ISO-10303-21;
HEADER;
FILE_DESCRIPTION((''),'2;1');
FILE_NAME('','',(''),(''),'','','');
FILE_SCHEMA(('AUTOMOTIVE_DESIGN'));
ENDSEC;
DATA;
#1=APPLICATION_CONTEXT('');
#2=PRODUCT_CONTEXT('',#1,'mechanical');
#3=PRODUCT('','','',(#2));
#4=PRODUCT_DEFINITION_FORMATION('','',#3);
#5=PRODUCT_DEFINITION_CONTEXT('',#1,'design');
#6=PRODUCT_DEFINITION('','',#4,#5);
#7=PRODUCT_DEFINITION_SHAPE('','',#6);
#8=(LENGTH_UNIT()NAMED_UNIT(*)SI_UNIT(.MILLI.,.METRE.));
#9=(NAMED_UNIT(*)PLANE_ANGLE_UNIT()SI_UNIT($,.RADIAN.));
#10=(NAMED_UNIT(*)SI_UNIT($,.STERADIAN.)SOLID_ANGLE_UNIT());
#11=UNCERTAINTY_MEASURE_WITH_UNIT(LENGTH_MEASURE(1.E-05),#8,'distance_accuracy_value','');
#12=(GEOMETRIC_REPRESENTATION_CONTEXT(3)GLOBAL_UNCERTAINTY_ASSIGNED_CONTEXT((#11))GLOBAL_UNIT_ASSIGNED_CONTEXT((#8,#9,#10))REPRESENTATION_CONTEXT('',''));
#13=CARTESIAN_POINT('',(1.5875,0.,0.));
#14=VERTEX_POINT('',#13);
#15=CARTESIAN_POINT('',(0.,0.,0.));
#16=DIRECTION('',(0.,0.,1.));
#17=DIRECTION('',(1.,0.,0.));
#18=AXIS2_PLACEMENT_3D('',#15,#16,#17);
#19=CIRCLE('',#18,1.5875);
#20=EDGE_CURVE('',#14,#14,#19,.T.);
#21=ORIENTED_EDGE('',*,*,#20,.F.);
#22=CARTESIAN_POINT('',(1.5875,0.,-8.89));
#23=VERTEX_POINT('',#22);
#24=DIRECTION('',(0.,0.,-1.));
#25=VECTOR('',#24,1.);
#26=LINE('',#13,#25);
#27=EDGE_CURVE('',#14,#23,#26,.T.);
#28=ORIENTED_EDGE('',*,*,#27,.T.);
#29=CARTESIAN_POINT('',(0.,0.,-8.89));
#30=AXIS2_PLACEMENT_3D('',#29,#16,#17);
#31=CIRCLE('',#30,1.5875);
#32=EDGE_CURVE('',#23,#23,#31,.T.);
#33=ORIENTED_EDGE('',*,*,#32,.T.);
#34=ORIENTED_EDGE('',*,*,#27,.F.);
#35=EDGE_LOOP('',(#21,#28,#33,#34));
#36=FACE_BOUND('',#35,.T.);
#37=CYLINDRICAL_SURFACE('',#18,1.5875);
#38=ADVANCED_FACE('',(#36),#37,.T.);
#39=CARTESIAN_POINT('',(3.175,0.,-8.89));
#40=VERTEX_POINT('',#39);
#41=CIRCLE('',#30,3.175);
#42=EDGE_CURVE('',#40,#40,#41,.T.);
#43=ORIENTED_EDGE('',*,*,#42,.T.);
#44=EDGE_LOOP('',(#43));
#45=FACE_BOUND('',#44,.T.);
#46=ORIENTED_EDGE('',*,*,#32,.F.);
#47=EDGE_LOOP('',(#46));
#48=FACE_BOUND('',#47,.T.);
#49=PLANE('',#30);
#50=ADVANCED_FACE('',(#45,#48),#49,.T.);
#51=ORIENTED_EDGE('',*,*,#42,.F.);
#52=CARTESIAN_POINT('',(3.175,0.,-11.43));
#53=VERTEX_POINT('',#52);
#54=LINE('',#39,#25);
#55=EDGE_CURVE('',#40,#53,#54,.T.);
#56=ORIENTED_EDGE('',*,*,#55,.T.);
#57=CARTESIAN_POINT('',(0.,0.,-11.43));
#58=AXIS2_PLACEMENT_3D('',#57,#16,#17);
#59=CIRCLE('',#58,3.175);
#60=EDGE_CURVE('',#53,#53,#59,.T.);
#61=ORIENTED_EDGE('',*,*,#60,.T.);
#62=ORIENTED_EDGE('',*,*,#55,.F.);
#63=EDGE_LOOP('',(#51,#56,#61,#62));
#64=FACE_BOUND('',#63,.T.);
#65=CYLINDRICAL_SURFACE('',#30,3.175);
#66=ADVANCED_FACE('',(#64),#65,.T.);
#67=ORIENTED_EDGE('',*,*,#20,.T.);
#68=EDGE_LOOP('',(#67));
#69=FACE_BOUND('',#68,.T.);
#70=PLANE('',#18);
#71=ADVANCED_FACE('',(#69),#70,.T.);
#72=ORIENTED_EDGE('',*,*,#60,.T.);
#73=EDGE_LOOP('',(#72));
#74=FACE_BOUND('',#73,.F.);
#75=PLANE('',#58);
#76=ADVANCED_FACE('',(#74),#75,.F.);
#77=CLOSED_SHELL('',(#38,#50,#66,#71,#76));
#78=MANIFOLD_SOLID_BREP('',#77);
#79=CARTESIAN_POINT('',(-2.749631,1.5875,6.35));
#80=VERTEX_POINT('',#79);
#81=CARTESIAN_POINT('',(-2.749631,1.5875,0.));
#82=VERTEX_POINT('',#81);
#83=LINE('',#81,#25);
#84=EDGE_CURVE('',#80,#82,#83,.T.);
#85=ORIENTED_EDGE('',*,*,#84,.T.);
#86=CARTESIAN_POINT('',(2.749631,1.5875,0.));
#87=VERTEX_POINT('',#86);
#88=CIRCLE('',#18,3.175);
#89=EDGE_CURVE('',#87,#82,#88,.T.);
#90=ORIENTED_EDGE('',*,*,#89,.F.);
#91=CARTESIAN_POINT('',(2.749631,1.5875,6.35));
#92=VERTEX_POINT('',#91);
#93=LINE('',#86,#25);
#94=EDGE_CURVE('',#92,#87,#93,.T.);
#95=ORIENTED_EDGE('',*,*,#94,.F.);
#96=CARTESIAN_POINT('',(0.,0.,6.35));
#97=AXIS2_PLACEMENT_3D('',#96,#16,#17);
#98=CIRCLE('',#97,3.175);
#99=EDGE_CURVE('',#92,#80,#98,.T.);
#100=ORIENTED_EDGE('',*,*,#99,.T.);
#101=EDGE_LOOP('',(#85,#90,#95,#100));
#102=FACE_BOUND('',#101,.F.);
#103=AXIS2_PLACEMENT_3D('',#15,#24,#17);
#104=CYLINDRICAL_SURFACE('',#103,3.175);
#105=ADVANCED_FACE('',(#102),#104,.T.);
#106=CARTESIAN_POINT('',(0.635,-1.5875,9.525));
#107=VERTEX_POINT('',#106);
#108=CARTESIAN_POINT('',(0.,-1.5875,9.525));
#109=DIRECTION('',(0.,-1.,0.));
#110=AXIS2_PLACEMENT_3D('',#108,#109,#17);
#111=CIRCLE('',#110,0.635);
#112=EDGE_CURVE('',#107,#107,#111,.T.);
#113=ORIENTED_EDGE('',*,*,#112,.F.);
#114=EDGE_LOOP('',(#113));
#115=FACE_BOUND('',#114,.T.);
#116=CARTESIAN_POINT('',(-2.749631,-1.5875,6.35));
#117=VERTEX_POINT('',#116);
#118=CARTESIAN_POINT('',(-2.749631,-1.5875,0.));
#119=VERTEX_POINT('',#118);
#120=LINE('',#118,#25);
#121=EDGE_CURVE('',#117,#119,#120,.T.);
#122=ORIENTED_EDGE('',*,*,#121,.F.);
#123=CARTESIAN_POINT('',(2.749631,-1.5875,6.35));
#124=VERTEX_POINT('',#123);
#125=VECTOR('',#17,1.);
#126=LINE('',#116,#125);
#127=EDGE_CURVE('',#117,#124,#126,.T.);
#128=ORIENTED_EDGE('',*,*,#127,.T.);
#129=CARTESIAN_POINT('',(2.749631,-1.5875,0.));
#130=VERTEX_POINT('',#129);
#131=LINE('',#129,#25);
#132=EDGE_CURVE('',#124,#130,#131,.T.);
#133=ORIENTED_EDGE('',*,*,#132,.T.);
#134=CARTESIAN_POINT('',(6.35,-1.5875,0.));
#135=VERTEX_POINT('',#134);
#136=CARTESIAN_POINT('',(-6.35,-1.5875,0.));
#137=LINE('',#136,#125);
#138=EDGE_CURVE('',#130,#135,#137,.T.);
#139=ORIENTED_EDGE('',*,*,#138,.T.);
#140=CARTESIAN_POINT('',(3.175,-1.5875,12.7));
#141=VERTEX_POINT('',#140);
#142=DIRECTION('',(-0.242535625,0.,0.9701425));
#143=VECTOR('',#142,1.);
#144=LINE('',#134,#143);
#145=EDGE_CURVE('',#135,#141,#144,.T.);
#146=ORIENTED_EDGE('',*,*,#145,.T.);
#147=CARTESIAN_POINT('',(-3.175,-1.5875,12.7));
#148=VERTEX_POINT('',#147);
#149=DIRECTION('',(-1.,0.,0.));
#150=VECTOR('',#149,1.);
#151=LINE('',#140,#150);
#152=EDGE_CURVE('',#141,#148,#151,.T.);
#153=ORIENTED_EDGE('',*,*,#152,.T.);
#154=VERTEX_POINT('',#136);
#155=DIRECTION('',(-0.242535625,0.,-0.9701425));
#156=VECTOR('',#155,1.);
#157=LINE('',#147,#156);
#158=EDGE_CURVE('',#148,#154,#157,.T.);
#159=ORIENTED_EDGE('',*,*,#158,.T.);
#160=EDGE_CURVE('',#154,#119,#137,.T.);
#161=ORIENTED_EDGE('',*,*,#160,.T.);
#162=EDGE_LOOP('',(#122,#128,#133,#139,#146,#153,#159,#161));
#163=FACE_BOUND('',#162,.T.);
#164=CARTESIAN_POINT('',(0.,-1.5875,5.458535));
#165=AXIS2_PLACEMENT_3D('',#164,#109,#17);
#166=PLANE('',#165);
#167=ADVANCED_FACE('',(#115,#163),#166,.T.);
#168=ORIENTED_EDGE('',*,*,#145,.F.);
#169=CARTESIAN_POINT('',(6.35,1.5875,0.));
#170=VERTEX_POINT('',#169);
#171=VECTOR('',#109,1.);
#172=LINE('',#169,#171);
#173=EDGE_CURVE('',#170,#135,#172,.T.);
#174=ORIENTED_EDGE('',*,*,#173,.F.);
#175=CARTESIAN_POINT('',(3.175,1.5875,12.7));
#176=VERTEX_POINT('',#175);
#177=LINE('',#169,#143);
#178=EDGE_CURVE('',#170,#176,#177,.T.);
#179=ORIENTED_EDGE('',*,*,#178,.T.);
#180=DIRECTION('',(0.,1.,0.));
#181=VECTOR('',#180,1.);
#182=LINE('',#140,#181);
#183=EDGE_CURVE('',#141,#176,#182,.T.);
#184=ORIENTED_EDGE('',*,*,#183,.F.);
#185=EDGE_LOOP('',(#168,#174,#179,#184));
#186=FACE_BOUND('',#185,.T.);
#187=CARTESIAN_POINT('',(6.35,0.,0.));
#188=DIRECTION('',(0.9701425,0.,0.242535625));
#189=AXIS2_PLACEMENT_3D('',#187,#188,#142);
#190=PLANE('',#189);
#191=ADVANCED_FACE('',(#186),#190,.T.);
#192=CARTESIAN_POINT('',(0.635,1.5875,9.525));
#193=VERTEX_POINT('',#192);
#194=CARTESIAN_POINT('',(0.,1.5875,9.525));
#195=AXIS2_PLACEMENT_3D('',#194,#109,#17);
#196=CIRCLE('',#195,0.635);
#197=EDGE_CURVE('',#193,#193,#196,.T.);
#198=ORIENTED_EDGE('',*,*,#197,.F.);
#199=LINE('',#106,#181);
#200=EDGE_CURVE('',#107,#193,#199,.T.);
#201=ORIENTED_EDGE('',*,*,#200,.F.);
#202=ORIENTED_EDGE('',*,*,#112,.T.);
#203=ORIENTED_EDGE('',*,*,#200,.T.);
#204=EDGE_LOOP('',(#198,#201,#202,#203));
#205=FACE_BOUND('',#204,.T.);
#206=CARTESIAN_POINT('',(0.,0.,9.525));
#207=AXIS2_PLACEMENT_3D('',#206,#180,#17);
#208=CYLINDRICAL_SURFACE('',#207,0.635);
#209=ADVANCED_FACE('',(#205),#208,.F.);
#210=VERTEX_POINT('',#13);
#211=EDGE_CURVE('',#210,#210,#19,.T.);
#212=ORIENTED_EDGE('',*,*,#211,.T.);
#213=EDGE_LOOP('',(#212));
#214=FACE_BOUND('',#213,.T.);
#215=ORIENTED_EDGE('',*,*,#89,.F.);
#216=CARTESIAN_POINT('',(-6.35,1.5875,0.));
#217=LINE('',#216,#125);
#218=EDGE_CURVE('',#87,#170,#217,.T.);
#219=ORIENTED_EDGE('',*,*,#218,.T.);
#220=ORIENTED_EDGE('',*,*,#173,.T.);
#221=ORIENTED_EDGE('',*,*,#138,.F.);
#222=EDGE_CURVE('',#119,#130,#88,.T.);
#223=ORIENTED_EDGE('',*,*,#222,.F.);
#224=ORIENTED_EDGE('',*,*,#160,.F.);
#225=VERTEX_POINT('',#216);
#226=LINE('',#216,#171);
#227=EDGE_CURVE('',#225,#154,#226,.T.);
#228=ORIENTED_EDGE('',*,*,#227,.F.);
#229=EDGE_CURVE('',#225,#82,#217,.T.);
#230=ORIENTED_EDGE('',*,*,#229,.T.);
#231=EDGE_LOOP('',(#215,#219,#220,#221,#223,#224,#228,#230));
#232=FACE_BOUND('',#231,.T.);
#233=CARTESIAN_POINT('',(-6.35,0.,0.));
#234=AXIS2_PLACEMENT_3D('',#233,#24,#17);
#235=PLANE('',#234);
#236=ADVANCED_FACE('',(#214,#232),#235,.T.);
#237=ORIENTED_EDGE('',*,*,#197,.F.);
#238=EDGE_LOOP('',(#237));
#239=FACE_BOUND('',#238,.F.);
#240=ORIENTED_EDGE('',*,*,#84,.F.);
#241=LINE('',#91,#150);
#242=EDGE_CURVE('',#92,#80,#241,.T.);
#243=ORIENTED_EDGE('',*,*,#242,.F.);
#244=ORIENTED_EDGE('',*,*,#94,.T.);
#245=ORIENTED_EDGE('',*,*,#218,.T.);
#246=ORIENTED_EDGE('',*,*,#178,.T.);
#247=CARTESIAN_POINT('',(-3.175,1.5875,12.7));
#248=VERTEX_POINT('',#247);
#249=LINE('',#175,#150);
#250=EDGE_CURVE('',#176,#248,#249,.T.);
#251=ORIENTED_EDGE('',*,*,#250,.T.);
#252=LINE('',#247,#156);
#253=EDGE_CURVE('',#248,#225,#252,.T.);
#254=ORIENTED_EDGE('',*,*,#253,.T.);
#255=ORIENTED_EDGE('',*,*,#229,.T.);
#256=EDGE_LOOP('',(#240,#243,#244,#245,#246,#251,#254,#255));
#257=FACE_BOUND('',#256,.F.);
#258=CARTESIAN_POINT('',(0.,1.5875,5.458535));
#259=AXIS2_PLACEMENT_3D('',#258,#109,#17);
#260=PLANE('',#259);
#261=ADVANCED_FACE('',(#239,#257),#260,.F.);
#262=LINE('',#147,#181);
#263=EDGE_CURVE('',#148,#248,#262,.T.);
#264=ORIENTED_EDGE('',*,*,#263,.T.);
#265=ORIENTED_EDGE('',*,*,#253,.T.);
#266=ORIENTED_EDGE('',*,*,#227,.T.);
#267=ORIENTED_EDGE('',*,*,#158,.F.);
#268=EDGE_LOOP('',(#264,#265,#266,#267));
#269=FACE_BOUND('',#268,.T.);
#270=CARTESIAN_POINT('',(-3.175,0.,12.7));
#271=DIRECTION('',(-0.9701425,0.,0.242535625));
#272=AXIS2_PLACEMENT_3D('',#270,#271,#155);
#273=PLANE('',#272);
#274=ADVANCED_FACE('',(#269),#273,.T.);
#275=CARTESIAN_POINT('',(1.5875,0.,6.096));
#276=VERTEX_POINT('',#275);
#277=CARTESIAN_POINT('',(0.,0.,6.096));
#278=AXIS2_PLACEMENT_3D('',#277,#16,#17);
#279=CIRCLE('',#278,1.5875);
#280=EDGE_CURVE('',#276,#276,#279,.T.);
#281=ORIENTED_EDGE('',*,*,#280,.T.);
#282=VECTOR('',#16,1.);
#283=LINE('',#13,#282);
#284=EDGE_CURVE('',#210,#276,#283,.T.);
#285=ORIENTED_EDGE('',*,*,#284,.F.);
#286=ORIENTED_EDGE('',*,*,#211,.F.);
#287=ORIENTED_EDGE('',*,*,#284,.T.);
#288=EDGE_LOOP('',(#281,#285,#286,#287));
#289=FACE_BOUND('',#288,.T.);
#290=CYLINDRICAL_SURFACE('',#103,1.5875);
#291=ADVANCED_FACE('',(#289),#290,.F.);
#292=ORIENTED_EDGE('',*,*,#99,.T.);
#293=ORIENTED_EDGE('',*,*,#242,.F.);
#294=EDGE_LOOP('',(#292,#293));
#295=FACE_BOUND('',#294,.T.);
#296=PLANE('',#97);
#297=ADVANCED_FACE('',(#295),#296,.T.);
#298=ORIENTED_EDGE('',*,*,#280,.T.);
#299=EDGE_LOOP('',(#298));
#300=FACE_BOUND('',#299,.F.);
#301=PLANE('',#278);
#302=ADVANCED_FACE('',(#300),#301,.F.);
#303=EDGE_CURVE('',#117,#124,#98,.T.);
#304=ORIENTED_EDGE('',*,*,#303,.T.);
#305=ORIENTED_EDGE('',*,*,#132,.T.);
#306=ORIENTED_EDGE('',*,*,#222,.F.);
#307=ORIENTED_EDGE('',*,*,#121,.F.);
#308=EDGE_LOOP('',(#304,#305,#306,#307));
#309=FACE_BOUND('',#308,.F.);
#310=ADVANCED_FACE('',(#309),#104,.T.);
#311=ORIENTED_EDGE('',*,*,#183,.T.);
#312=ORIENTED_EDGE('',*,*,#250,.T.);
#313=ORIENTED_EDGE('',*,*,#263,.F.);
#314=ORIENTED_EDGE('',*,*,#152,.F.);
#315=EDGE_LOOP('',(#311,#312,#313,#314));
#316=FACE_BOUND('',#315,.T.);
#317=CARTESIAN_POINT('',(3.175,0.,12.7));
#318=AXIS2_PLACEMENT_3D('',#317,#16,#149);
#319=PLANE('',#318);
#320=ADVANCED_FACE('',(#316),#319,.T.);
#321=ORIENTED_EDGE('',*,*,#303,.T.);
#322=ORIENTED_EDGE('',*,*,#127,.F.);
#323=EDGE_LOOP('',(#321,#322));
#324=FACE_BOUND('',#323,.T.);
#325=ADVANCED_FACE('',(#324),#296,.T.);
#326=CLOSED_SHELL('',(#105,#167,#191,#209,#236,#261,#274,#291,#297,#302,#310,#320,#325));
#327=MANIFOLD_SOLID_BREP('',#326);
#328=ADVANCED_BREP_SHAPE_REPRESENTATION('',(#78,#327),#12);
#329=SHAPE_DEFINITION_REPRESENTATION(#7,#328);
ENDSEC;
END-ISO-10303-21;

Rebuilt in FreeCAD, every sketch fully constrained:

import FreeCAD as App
import Part
import Sketcher

V = App.Vector
Q = App.Units.Quantity


def add_polygon(sketch, points):
    """Adds a closed chain of lines whose ends are joined by coincident constraints."""
    first, n = sketch.GeometryCount, len(points)
    for a, b in zip(points, points[1:] + points[:1]):
        sketch.addGeometry(Part.LineSegment(App.Vector(*a, 0), App.Vector(*b, 0)), False)
    for i in range(n):
        sketch.addConstraint(Sketcher.Constraint("Coincident", first + i, 2, first + (i + 1) % n, 1))

doc = App.newDocument("Part")
params = doc.addObject("Spreadsheet::Sheet", "Params")
for row, (alias, value) in enumerate([
    ("sketch1_diameter", "0.05 in"),
    ("sketch1_width", "0.5 in"),
    ("sketch1_width2", "0.25 in"),
    ("pad1_length", "0.0625 in"),
    ("pad1_length2", "0.0625 in"),
    ("sketch2_diameter", "0.25 in"),
    ("sketch2_diameter2", "0.125 in"),
    ("pad2_length", "0.25 in"),
    ("sketch3_diameter", "0.125 in"),
    ("pocket1_length", "0.24 in"),
    ("sketch4_diameter", "0.125 in"),
    ("pad3_length", "0.45 in"),
    ("sketch5_diameter", "0.25 in"),
    ("sketch5_diameter2", "0.125 in"),
    ("pad4_length", "0.1 in"),
], start=1):
    params.set(f"A{row}", alias)
    params.set(f"B{row}", "=" + value)
    params.setAlias(f"B{row}", alias)

body = doc.addObject("PartDesign::Body", "Body")

sketch1 = doc.addObject("Sketcher::SketchObject", "Sketch")
body.addObject(sketch1)
sketch1.AttachmentSupport = (doc.XZ_Plane, [""])
sketch1.MapMode = "FlatFace"
add_polygon(sketch1, [(-3.2, 12.7), (-6.3, 0), (6.3, 0), (3.2, 12.7)])
sketch1.addGeometry(Part.Circle(V(0, 9.5, 0), V(0, 0, 1), 0.6), False)
sketch1.addConstraint(Sketcher.Constraint("Horizontal", 1))
sketch1.addConstraint(Sketcher.Constraint("Horizontal", 3))
sketch1.addConstraint(Sketcher.Constraint("Symmetric", 0, 2, 1, 2, -1, 1))
sketch1.addConstraint(Sketcher.Constraint("PointOnObject", 4, 3, -2))
sketch1.addConstraint(Sketcher.Constraint("Equal", 0, 2))
sketch1.addConstraint(Sketcher.Constraint("Diameter", 4, Q("0.05 in")))
sketch1.addConstraint(Sketcher.Constraint("DistanceX", 1, 1, 1, 2, Q("0.5 in")))
sketch1.addConstraint(Sketcher.Constraint("DistanceX", 3, 2, 3, 1, Q("0.25 in")))
sketch1.addConstraint(Sketcher.Constraint("DistanceY", -1, 1, 2, 2, Q("0.5 in")))
sketch1.addConstraint(Sketcher.Constraint("DistanceY", -1, 1, 4, 3, Q("0.375 in")))
sketch1.setExpression("Constraints[9]", "Params.sketch1_diameter")
sketch1.setExpression("Constraints[10]", "Params.sketch1_width")
sketch1.setExpression("Constraints[11]", "Params.sketch1_width2")
pad1 = doc.addObject("PartDesign::Pad", "Pad")
body.addObject(pad1)
pad1.Profile = sketch1
pad1.Type = "TwoLengths"
pad1.setExpression("Length", "Params.pad1_length")
pad1.setExpression("Length2", "Params.pad1_length2")

sketch2 = doc.addObject("Sketcher::SketchObject", "Sketch001")
body.addObject(sketch2)
sketch2.AttachmentSupport = (doc.XY_Plane, [""])
sketch2.MapMode = "FlatFace"
sketch2.addGeometry(Part.Circle(V(0, 0, 0), V(0, 0, 1), 3.2), False)
sketch2.addGeometry(Part.Circle(V(0, 0, 0), V(0, 0, 1), 1.6), False)
sketch2.addConstraint(Sketcher.Constraint("Coincident", 0, 3, -1, 1))
sketch2.addConstraint(Sketcher.Constraint("Coincident", 1, 3, -1, 1))
sketch2.addConstraint(Sketcher.Constraint("Diameter", 0, Q("0.25 in")))
sketch2.addConstraint(Sketcher.Constraint("Diameter", 1, Q("0.125 in")))
sketch2.setExpression("Constraints[2]", "Params.sketch2_diameter")
sketch2.setExpression("Constraints[3]", "Params.sketch2_diameter2")
pad2 = doc.addObject("PartDesign::Pad", "Pad001")
body.addObject(pad2)
pad2.Profile = sketch2
pad2.setExpression("Length", "Params.pad2_length")

sketch3 = doc.addObject("Sketcher::SketchObject", "Sketch002")
body.addObject(sketch3)
sketch3.AttachmentSupport = (doc.XY_Plane, [""])
sketch3.MapMode = "FlatFace"
sketch3.addGeometry(Part.Circle(V(0, 0, 0), V(0, 0, 1), 1.6), False)
sketch3.addConstraint(Sketcher.Constraint("Coincident", 0, 3, -1, 1))
sketch3.addConstraint(Sketcher.Constraint("Diameter", 0, Q("0.125 in")))
sketch3.setExpression("Constraints[1]", "Params.sketch3_diameter")
pocket1 = doc.addObject("PartDesign::Pocket", "Pocket")
body.addObject(pocket1)
pocket1.Profile = sketch3
pocket1.setExpression("Length", "Params.pocket1_length")
pocket1.Reversed = True
body2 = doc.addObject("PartDesign::Body", "Body001")

sketch4 = doc.addObject("Sketcher::SketchObject", "Sketch003")
body2.addObject(sketch4)
sketch4.AttachmentSupport = (doc.getObject("XY_Plane001"), [""])
sketch4.MapMode = "FlatFace"
sketch4.addGeometry(Part.Circle(V(0, 0, 0), V(0, 0, 1), 1.6), False)
sketch4.addConstraint(Sketcher.Constraint("Coincident", 0, 3, -1, 1))
sketch4.addConstraint(Sketcher.Constraint("Diameter", 0, Q("0.125 in")))
sketch4.setExpression("Constraints[1]", "Params.sketch4_diameter")
pad3 = doc.addObject("PartDesign::Pad", "Pad002")
body2.addObject(pad3)
pad3.Profile = sketch4
pad3.setExpression("Length", "Params.pad3_length")
pad3.Reversed = True

sketch5 = doc.addObject("Sketcher::SketchObject", "Sketch004")
body2.addObject(sketch5)
sketch5.AttachmentSupport = (doc.getObject("XY_Plane001"), [""])
sketch5.MapMode = "FlatFace"
sketch5.AttachmentOffset = App.Placement(V(0, 0, -0.35 * 25.4), App.Rotation())
sketch5.addGeometry(Part.Circle(V(0, 0, 0), V(0, 0, 1), 3.2), False)
sketch5.addGeometry(Part.Circle(V(0, 0, 0), V(0, 0, 1), 1.6), False)
sketch5.addConstraint(Sketcher.Constraint("Coincident", 0, 3, -1, 1))
sketch5.addConstraint(Sketcher.Constraint("Coincident", 1, 3, -1, 1))
sketch5.addConstraint(Sketcher.Constraint("Diameter", 0, Q("0.25 in")))
sketch5.addConstraint(Sketcher.Constraint("Diameter", 1, Q("0.125 in")))
sketch5.setExpression("Constraints[2]", "Params.sketch5_diameter")
sketch5.setExpression("Constraints[3]", "Params.sketch5_diameter2")
pad4 = doc.addObject("PartDesign::Pad", "Pad003")
body2.addObject(pad4)
pad4.Profile = sketch5
pad4.setExpression("Length", "Params.pad4_length")
pad4.Reversed = True

doc.recompute()
